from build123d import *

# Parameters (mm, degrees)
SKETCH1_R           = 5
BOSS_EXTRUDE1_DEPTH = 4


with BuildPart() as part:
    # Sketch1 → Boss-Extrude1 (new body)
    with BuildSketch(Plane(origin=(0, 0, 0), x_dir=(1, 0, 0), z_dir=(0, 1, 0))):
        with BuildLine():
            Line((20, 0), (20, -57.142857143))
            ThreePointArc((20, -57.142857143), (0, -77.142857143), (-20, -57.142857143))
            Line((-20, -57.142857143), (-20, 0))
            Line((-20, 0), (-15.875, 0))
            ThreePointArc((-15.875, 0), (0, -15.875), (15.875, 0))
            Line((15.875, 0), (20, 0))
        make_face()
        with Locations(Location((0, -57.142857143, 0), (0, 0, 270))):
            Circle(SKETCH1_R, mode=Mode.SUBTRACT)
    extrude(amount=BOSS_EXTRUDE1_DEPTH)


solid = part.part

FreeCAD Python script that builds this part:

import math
import FreeCAD as App
import Part
import Sketcher
from FreeCAD import Vector

doc = App.newDocument("Part")
body = doc.addObject("PartDesign::Body", "Body")

# Sketch on XZ plane
sketch1 = body.newObject("Sketcher::SketchObject", "Sketch")
sketch1.AttachmentSupport = (doc.getObject("XZ_Plane"), [""])
sketch1.MapMode = "FlatFace"
sketch1.addGeometry(Part.LineSegment(Vector(20, 57.142857, 0), Vector(20, 0, 0)), False)
sketch1.addGeometry(Part.LineSegment(Vector(20, 0, 0), Vector(15.875, 0, 0)), False)
sketch1.addGeometry(Part.ArcOfCircle(Part.Circle(Vector(0, 0, 0), Vector(0, 0, 1), 15.875), math.radians(0), math.radians(180)), False)
sketch1.addGeometry(Part.LineSegment(Vector(-15.875, 0, 0), Vector(-20, 0, 0)), False)
sketch1.addGeometry(Part.LineSegment(Vector(-20, 0, 0), Vector(-20, 57.142857, 0)), False)
sketch1.addGeometry(Part.ArcOfCircle(Part.Circle(Vector(0, 57.142857, 0), Vector(0, 0, 1), 20), math.radians(0), math.radians(180)), False)
sketch1.addGeometry(Part.Circle(Vector(0, 57.142857, 0), Vector(0, 0, 1), 5), False)
sketch1.addConstraint(Sketcher.Constraint("Coincident", 0, 2, 1, 1))
sketch1.addConstraint(Sketcher.Constraint("Coincident", 1, 2, 2, 1))
sketch1.addConstraint(Sketcher.Constraint("Coincident", 2, 2, 3, 1))
sketch1.addConstraint(Sketcher.Constraint("Coincident", 3, 2, 4, 1))
sketch1.addConstraint(Sketcher.Constraint("Tangent", 4, 2, 5, 2))
sketch1.addConstraint(Sketcher.Constraint("Tangent", 5, 1, 0, 1))
sketch1.addConstraint(Sketcher.Constraint("Vertical", 0))
sketch1.addConstraint(Sketcher.Constraint("Horizontal", 1))
sketch1.addConstraint(Sketcher.Constraint("Horizontal", 3))
sketch1.addConstraint(Sketcher.Constraint("Vertical", 4))
sketch1.addConstraint(Sketcher.Constraint("Coincident", 2, 3, -1, 1))
sketch1.addConstraint(Sketcher.Constraint("Coincident", 6, 3, 5, 3))
sketch1.addConstraint(Sketcher.Constraint("Symmetric", 0, 2, 3, 2, -1, 1))
sketch1.addConstraint(Sketcher.Constraint("PointOnObject", 0, 2, -1))
sketch1.addConstraint(Sketcher.Constraint("Diameter", 6, 10.0))
sketch1.addConstraint(Sketcher.Constraint("Radius", 5, 20.0))
sketch1.addConstraint(Sketcher.Constraint("Radius", 2, 15.875))
sketch1.addConstraint(Sketcher.Constraint("DistanceY", 0, 2, 0, 1, 57.142857))
pad1 = body.newObject("PartDesign::Pad", "Pad")
pad1.Profile = sketch1
pad1.Length = 4
pad1.Reversed = True

doc.recompute()
